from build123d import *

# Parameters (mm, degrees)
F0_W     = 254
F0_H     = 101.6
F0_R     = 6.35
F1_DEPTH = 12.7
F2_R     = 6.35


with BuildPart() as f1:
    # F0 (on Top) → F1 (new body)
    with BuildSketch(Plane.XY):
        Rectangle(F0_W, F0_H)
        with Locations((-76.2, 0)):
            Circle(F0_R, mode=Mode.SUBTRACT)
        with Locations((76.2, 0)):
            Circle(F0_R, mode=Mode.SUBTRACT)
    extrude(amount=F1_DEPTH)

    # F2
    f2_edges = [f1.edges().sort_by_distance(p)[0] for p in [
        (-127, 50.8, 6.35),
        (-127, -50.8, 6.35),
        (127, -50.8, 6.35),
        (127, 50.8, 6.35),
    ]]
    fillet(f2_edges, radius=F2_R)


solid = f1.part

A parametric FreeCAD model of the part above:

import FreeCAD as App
import Part
import Sketcher
Q = App.Units.Quantity


def edges_at(feature, points):
    """Names of the edges that pass closest to the given points."""
    edges = feature.Shape.Edges
    near = lambda p: min(range(len(edges)), key=lambda i: edges[i].distToShape(Part.Vertex(*p))[0])
    return sorted({f"Edge{near(p) + 1}" for p in points})


def add_polygon(sketch, points):
    """Adds a closed chain of lines whose ends are joined by coincident constraints."""
    first, n = sketch.GeometryCount, len(points)
    for a, b in zip(points, points[1:] + points[:1]):
        sketch.addGeometry(Part.LineSegment(App.Vector(*a, 0), App.Vector(*b, 0)), False)
    for i in range(n):
        sketch.addConstraint(Sketcher.Constraint("Coincident", first + i, 2, first + (i + 1) % n, 1))

doc = App.newDocument("Part")
body = doc.addObject("PartDesign::Body", "Body")

sketch1 = body.newObject("Sketcher::SketchObject", "Sketch")
sketch1.AttachmentSupport = (doc.getObject("XY_Plane"), [""])
sketch1.MapMode = "FlatFace"
add_polygon(sketch1, [(-127, 51), (-127, -51), (127, -51), (127, 51)])
sketch1.addGeometry(Part.Circle(App.Vector(-76, 0, 0), App.Vector(0, 0, 1), 6), False)
sketch1.addGeometry(Part.Circle(App.Vector(76, 0, 0), App.Vector(0, 0, 1), 6), False)
sketch1.addConstraint(Sketcher.Constraint("Vertical", 0))
sketch1.addConstraint(Sketcher.Constraint("Horizontal", 1))
sketch1.addConstraint(Sketcher.Constraint("Vertical", 2))
sketch1.addConstraint(Sketcher.Constraint("Horizontal", 3))
sketch1.addConstraint(Sketcher.Constraint("Equal", 4, 5))
sketch1.addConstraint(Sketcher.Constraint("Symmetric", 4, 3, 5, 3, -1, 1))
sketch1.addConstraint(Sketcher.Constraint("Symmetric", 0, 2, 2, 2, -1, 1))
sketch1.addConstraint(Sketcher.Constraint("PointOnObject", 4, 3, -1))
sketch1.addConstraint(Sketcher.Constraint("Diameter", 4, Q("0.5 in")))
sketch1.addConstraint(Sketcher.Constraint("DistanceX", 1, 1, 1, 2, Q("10 in")))
sketch1.addConstraint(Sketcher.Constraint("DistanceY", 0, 2, 0, 1, Q("4 in")))
sketch1.addConstraint(Sketcher.Constraint("DistanceX", 4, 3, -1, 1, Q("3 in")))
pad1 = body.newObject("PartDesign::Pad", "Pad")
pad1.Profile = sketch1
pad1.Length = Q("0.5 in")
doc.recompute()

fillet = body.newObject("PartDesign::Fillet", "Fillet")
fillet.Base = (pad1, edges_at(pad1, [
    (-127, 50.8, 6.35),
    (-127, -50.8, 6.35),
    (127, -50.8, 6.35),
    (127, 50.8, 6.35),
]))
fillet.Radius = Q("0.25 in")

doc.recompute()
